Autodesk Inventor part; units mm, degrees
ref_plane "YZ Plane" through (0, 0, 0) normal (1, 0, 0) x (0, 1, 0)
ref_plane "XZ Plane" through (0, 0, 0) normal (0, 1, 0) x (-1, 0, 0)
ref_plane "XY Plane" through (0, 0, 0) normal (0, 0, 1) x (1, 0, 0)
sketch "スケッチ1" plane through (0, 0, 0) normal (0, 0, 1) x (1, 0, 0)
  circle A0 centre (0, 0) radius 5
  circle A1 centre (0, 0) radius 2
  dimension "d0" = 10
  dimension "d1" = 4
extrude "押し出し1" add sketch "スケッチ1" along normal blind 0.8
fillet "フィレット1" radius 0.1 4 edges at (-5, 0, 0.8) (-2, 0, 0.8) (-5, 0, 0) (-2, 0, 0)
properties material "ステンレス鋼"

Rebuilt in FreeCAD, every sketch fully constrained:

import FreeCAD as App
import Part
import Sketcher
from FreeCAD import Vector


def edges_at(feature, points):
    """Names of the edges that pass closest to the given points."""
    edges = feature.Shape.Edges
    near = lambda p: min(range(len(edges)), key=lambda i: edges[i].distToShape(Part.Vertex(*p))[0])
    return sorted({f"Edge{near(p) + 1}" for p in points})

doc = App.newDocument("Part")
body = doc.addObject("PartDesign::Body", "Body")

# Sketch on XY plane
sketch1 = doc.addObject("Sketcher::SketchObject", "Sketch")
body.addObject(sketch1)
sketch1.AttachmentSupport = (doc.XY_Plane, [""])
sketch1.MapMode = "FlatFace"
sketch1.addGeometry(Part.Circle(Vector(0, 0, 0), Vector(0, 0, 1), 5), False)
sketch1.addGeometry(Part.Circle(Vector(0, 0, 0), Vector(0, 0, 1), 2), False)
sketch1.addConstraint(Sketcher.Constraint("Coincident", 0, 3, -1, 1))
sketch1.addConstraint(Sketcher.Constraint("Coincident", 1, 3, -1, 1))
sketch1.addConstraint(Sketcher.Constraint("Diameter", 0, 10.0))
sketch1.addConstraint(Sketcher.Constraint("Diameter", 1, 4.0))
pad1 = doc.addObject("PartDesign::Pad", "Pad")
body.addObject(pad1)
pad1.Profile = sketch1
pad1.Length = 0.8
doc.recompute()

fillet = doc.addObject("PartDesign::Fillet", "Fillet")
body.addObject(fillet)
fillet.Base = (pad1, edges_at(pad1, [
    (-5, 0, 0.8),
    (-2, 0, 0.8),
    (-5, 0, 0),
    (-2, 0, 0),
]))
fillet.Radius = 0.1

doc.recompute()
